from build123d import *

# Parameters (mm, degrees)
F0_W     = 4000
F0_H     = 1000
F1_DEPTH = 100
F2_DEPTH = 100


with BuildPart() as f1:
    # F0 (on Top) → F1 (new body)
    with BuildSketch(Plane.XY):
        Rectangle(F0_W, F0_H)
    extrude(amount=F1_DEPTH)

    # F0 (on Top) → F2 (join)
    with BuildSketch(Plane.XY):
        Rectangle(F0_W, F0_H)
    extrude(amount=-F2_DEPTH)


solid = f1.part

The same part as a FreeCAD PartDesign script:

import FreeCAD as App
import Part
import Sketcher

doc = App.newDocument("Part")
params = doc.addObject("Spreadsheet::Sheet", "Params")
for row, (alias, value) in enumerate([
    ("sketch1_width", "4000 mm"),
    ("sketch1_height", "1000 mm"),
    ("pad1_length", "100 mm"),
    ("sketch2_width", "4000 mm"),
    ("sketch2_height", "1000 mm"),
    ("pad2_length", "100 mm"),
], start=1):
    params.set(f"A{row}", alias)
    params.set(f"B{row}", "=" + value)
    params.setAlias(f"B{row}", alias)

body = doc.addObject("PartDesign::Body", "Body")

# Sketch on XY plane
sketch1 = body.newObject("Sketcher::SketchObject", "Sketch")
sketch1.AttachmentSupport = (doc.getObject("XY_Plane"), [""])
sketch1.MapMode = "FlatFace"
sketch1.addGeometry([
    Part.LineSegment(App.Vector(-2000, 500, 0), App.Vector(-2000, -500, 0)),
    Part.LineSegment(App.Vector(-2000, -500, 0), App.Vector(2000, -500, 0)),
    Part.LineSegment(App.Vector(2000, -500, 0), App.Vector(2000, 500, 0)),
    Part.LineSegment(App.Vector(2000, 500, 0), App.Vector(-2000, 500, 0)),
], False)
sketch1.addConstraint([
    Sketcher.Constraint("Coincident", 0, 2, 1, 1),
    Sketcher.Constraint("Coincident", 1, 2, 2, 1),
    Sketcher.Constraint("Coincident", 2, 2, 3, 1),
    Sketcher.Constraint("Coincident", 3, 2, 0, 1),
    Sketcher.Constraint("Vertical", 0),
    Sketcher.Constraint("Horizontal", 1),
    Sketcher.Constraint("Vertical", 2),
    Sketcher.Constraint("Horizontal", 3),
    Sketcher.Constraint("Symmetric", 0, 2, 2, 2, -1, 1),
    Sketcher.Constraint("DistanceX", 1, 1, 1, 2, 4000.0),
    Sketcher.Constraint("DistanceY", 0, 2, 0, 1, 1000.0),
])
sketch1.setExpression("Constraints[9]", "Params.sketch1_width")
sketch1.setExpression("Constraints[10]", "Params.sketch1_height")
pad1 = body.newObject("PartDesign::Pad", "Pad")
pad1.Profile = sketch1
pad1.setExpression("Length", "Params.pad1_length")

# Sketch on XY plane
sketch2 = body.newObject("Sketcher::SketchObject", "Sketch001")
sketch2.AttachmentSupport = (doc.getObject("XY_Plane"), [""])
sketch2.MapMode = "FlatFace"
sketch2.addGeometry([
    Part.LineSegment(App.Vector(-2000, 500, 0), App.Vector(-2000, -500, 0)),
    Part.LineSegment(App.Vector(-2000, -500, 0), App.Vector(2000, -500, 0)),
    Part.LineSegment(App.Vector(2000, -500, 0), App.Vector(2000, 500, 0)),
    Part.LineSegment(App.Vector(2000, 500, 0), App.Vector(-2000, 500, 0)),
], False)
sketch2.addConstraint([
    Sketcher.Constraint("Coincident", 0, 2, 1, 1),
    Sketcher.Constraint("Coincident", 1, 2, 2, 1),
    Sketcher.Constraint("Coincident", 2, 2, 3, 1),
    Sketcher.Constraint("Coincident", 3, 2, 0, 1),
    Sketcher.Constraint("Vertical", 0),
    Sketcher.Constraint("Horizontal", 1),
    Sketcher.Constraint("Vertical", 2),
    Sketcher.Constraint("Horizontal", 3),
    Sketcher.Constraint("Symmetric", 0, 2, 2, 2, -1, 1),
    Sketcher.Constraint("DistanceX", 1, 1, 1, 2, 4000.0),
    Sketcher.Constraint("DistanceY", 0, 2, 0, 1, 1000.0),
])
sketch2.setExpression("Constraints[9]", "Params.sketch2_width")
sketch2.setExpression("Constraints[10]", "Params.sketch2_height")
pad2 = body.newObject("PartDesign::Pad", "Pad001")
pad2.Profile = sketch2
pad2.setExpression("Length", "Params.pad2_length")
pad2.Reversed = True

doc.recompute()
